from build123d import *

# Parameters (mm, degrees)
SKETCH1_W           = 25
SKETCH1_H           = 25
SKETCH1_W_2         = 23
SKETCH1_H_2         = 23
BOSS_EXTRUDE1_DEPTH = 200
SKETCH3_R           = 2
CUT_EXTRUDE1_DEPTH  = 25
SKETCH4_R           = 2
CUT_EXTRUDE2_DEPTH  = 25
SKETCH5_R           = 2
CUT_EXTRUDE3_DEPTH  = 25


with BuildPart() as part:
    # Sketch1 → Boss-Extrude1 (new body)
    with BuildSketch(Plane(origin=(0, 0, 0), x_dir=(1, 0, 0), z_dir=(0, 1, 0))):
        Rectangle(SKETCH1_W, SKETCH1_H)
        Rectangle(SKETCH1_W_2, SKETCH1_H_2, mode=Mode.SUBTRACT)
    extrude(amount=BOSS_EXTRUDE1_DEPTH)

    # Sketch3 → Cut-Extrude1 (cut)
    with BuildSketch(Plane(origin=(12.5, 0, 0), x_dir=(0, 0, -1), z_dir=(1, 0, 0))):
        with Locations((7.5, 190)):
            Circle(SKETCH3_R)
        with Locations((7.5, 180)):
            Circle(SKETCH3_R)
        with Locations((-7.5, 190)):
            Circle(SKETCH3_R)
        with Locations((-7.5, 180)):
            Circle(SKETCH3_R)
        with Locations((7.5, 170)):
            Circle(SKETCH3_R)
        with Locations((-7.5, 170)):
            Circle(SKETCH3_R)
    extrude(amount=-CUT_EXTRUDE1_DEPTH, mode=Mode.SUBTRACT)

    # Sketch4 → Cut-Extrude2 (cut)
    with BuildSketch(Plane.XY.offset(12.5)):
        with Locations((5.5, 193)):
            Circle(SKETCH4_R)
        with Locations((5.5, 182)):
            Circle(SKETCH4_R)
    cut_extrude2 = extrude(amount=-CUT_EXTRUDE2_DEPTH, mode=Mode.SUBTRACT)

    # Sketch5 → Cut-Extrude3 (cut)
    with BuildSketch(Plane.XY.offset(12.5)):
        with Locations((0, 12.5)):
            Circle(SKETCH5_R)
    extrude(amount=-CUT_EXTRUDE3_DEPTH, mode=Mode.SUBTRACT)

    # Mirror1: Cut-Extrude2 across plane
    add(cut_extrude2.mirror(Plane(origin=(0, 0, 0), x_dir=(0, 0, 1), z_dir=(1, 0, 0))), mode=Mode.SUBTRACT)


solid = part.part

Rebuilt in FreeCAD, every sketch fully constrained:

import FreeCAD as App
import Part
import Sketcher
from FreeCAD import Vector
Q = App.Units.Quantity

doc = App.newDocument("Part")
body = doc.addObject("PartDesign::Body", "Body")

sketch1 = doc.addObject("Sketcher::SketchObject", "Sketch")
body.addObject(sketch1)
sketch1.AttachmentSupport = (doc.XZ_Plane, [""])
sketch1.MapMode = "FlatFace"
sketch1.addGeometry(Part.LineSegment(Vector(-12.5, -12.5, 0), Vector(-12.5, 12.5, 0)), False)
sketch1.addGeometry(Part.LineSegment(Vector(-12.5, 12.5, 0), Vector(12.5, 12.5, 0)), False)
sketch1.addGeometry(Part.LineSegment(Vector(12.5, 12.5, 0), Vector(12.5, -12.5, 0)), False)
sketch1.addGeometry(Part.LineSegment(Vector(12.5, -12.5, 0), Vector(-12.5, -12.5, 0)), False)
sketch1.addGeometry(Part.LineSegment(Vector(11.5, 11.5, 0), Vector(-11.5, 11.5, 0)), False)
sketch1.addGeometry(Part.LineSegment(Vector(-11.5, 11.5, 0), Vector(-11.5, -11.5, 0)), False)
sketch1.addGeometry(Part.LineSegment(Vector(-11.5, -11.5, 0), Vector(11.5, -11.5, 0)), False)
sketch1.addGeometry(Part.LineSegment(Vector(11.5, -11.5, 0), Vector(11.5, 11.5, 0)), False)
sketch1.addConstraint(Sketcher.Constraint("Coincident", 0, 2, 1, 1))
sketch1.addConstraint(Sketcher.Constraint("Coincident", 1, 2, 2, 1))
sketch1.addConstraint(Sketcher.Constraint("Coincident", 2, 2, 3, 1))
sketch1.addConstraint(Sketcher.Constraint("Coincident", 3, 2, 0, 1))
sketch1.addConstraint(Sketcher.Constraint("Coincident", 4, 2, 5, 1))
sketch1.addConstraint(Sketcher.Constraint("Coincident", 5, 2, 6, 1))
sketch1.addConstraint(Sketcher.Constraint("Coincident", 6, 2, 7, 1))
sketch1.addConstraint(Sketcher.Constraint("Coincident", 7, 2, 4, 1))
sketch1.addConstraint(Sketcher.Constraint("Vertical", 0))
sketch1.addConstraint(Sketcher.Constraint("Horizontal", 1))
sketch1.addConstraint(Sketcher.Constraint("Vertical", 2))
sketch1.addConstraint(Sketcher.Constraint("Horizontal", 3))
sketch1.addConstraint(Sketcher.Constraint("Horizontal", 4))
sketch1.addConstraint(Sketcher.Constraint("Vertical", 5))
sketch1.addConstraint(Sketcher.Constraint("Horizontal", 6))
sketch1.addConstraint(Sketcher.Constraint("Vertical", 7))
sketch1.addConstraint(Sketcher.Constraint("Symmetric", 0, 2, 2, 2, -1, 1))
sketch1.addConstraint(Sketcher.Constraint("Symmetric", 4, 2, 6, 2, -1, 1))
sketch1.addConstraint(Sketcher.Constraint("Equal", 3, 0))
sketch1.addConstraint(Sketcher.Constraint("Equal", 6, 5))
sketch1.addConstraint(Sketcher.Constraint("DistanceX", 1, 1, 1, 2, Q("25 mm")))
sketch1.addConstraint(Sketcher.Constraint("DistanceX", 4, 2, 4, 1, Q("23 mm")))
pad1 = doc.addObject("PartDesign::Pad", "Pad")
body.addObject(pad1)
pad1.Profile = sketch1
pad1.Length = 200
pad1.Reversed = True

sketch2 = doc.addObject("Sketcher::SketchObject", "Sketch001")
body.addObject(sketch2)
sketch2.AttachmentSupport = (doc.YZ_Plane, [""])
sketch2.MapMode = "FlatFace"
sketch2.AttachmentOffset = App.Placement(Vector(0, 0, 12.5), App.Rotation())
sketch2.addGeometry(Part.Circle(Vector(190, -7.5, 0), Vector(0, 0, 1), 2), False)
sketch2.addGeometry(Part.Circle(Vector(180, -7.5, 0), Vector(0, 0, 1), 2), False)
sketch2.addGeometry(Part.Circle(Vector(190, 7.5, 0), Vector(0, 0, 1), 2), False)
sketch2.addGeometry(Part.Circle(Vector(180, 7.5, 0), Vector(0, 0, 1), 2), False)
sketch2.addGeometry(Part.Circle(Vector(170, -7.5, 0), Vector(0, 0, 1), 2), False)
sketch2.addGeometry(Part.Circle(Vector(170, 7.5, 0), Vector(0, 0, 1), 2), False)
sketch2.addConstraint(Sketcher.Constraint("Equal", 0, 1))
sketch2.addConstraint(Sketcher.Constraint("Equal", 1, 2))
sketch2.addConstraint(Sketcher.Constraint("Equal", 2, 3))
sketch2.addConstraint(Sketcher.Constraint("Equal", 3, 4))
sketch2.addConstraint(Sketcher.Constraint("Equal", 4, 5))
sketch2.addConstraint(Sketcher.Constraint("Symmetric", 0, 3, 2, 3, -1))
sketch2.addConstraint(Sketcher.Constraint("Symmetric", 1, 3, 3, 3, -1))
sketch2.addConstraint(Sketcher.Constraint("Symmetric", 4, 3, 5, 3, -1))
sketch2.addConstraint(Sketcher.Constraint("Horizontal", 0, 3, 1, 3))
sketch2.addConstraint(Sketcher.Constraint("Horizontal", 1, 3, 4, 3))
sketch2.addConstraint(Sketcher.Constraint("Diameter", 0, Q("4 mm")))
sketch2.addConstraint(Sketcher.Constraint("DistanceX", -1, 1, 0, 3, Q("190 mm")))
sketch2.addConstraint(Sketcher.Constraint("DistanceX", -1, 1, 1, 3, Q("180 mm")))
sketch2.addConstraint(Sketcher.Constraint("DistanceX", -1, 1, 4, 3, Q("170 mm")))
sketch2.addConstraint(Sketcher.Constraint("DistanceY", 0, 3, 2, 3, Q("15 mm")))
pocket1 = doc.addObject("PartDesign::Pocket", "Pocket")
body.addObject(pocket1)
pocket1.Profile = sketch2
pocket1.Length = 25

sketch3 = doc.addObject("Sketcher::SketchObject", "Sketch002")
body.addObject(sketch3)
sketch3.AttachmentSupport = (doc.XY_Plane, [""])
sketch3.MapMode = "FlatFace"
sketch3.AttachmentOffset = App.Placement(Vector(0, 0, 12.5), App.Rotation())
sketch3.addGeometry(Part.Circle(Vector(5.5, 193, 0), Vector(0, 0, 1), 2), False)
sketch3.addGeometry(Part.Circle(Vector(5.5, 182, 0), Vector(0, 0, 1), 2), False)
sketch3.addConstraint(Sketcher.Constraint("Equal", 0, 1))
sketch3.addConstraint(Sketcher.Constraint("Vertical", 0, 3, 1, 3))
sketch3.addConstraint(Sketcher.Constraint("Diameter", 0, Q("4 mm")))
sketch3.addConstraint(Sketcher.Constraint("DistanceY", -1, 1, 0, 3, Q("193 mm")))
sketch3.addConstraint(Sketcher.Constraint("DistanceY", -1, 1, 1, 3, Q("182 mm")))
sketch3.addConstraint(Sketcher.Constraint("DistanceX", -1, 1, 0, 3, Q("5.5 mm")))
pocket2 = doc.addObject("PartDesign::Pocket", "Pocket001")
body.addObject(pocket2)
pocket2.Profile = sketch3
pocket2.Length = 25

sketch4 = doc.addObject("Sketcher::SketchObject", "Sketch003")
body.addObject(sketch4)
sketch4.AttachmentSupport = (doc.XY_Plane, [""])
sketch4.MapMode = "FlatFace"
sketch4.AttachmentOffset = App.Placement(Vector(0, 0, 12.5), App.Rotation())
sketch4.addGeometry(Part.Circle(Vector(0, 12.5, 0), Vector(0, 0, 1), 2), False)
sketch4.addConstraint(Sketcher.Constraint("PointOnObject", 0, 3, -2))
sketch4.addConstraint(Sketcher.Constraint("Diameter", 0, Q("4 mm")))
sketch4.addConstraint(Sketcher.Constraint("DistanceY", -1, 1, 0, 3, Q("12.5 mm")))
pocket3 = doc.addObject("PartDesign::Pocket", "Pocket002")
body.addObject(pocket3)
pocket3.Profile = sketch4
pocket3.Length = 25
doc.recompute()

mirrored = doc.addObject("PartDesign::Mirrored", "Mirrored")
body.addObject(mirrored)
mirrored.Originals = [pocket2]
mirrored.MirrorPlane = (doc.YZ_Plane, [""])
body.Tip = mirrored

doc.recompute()
